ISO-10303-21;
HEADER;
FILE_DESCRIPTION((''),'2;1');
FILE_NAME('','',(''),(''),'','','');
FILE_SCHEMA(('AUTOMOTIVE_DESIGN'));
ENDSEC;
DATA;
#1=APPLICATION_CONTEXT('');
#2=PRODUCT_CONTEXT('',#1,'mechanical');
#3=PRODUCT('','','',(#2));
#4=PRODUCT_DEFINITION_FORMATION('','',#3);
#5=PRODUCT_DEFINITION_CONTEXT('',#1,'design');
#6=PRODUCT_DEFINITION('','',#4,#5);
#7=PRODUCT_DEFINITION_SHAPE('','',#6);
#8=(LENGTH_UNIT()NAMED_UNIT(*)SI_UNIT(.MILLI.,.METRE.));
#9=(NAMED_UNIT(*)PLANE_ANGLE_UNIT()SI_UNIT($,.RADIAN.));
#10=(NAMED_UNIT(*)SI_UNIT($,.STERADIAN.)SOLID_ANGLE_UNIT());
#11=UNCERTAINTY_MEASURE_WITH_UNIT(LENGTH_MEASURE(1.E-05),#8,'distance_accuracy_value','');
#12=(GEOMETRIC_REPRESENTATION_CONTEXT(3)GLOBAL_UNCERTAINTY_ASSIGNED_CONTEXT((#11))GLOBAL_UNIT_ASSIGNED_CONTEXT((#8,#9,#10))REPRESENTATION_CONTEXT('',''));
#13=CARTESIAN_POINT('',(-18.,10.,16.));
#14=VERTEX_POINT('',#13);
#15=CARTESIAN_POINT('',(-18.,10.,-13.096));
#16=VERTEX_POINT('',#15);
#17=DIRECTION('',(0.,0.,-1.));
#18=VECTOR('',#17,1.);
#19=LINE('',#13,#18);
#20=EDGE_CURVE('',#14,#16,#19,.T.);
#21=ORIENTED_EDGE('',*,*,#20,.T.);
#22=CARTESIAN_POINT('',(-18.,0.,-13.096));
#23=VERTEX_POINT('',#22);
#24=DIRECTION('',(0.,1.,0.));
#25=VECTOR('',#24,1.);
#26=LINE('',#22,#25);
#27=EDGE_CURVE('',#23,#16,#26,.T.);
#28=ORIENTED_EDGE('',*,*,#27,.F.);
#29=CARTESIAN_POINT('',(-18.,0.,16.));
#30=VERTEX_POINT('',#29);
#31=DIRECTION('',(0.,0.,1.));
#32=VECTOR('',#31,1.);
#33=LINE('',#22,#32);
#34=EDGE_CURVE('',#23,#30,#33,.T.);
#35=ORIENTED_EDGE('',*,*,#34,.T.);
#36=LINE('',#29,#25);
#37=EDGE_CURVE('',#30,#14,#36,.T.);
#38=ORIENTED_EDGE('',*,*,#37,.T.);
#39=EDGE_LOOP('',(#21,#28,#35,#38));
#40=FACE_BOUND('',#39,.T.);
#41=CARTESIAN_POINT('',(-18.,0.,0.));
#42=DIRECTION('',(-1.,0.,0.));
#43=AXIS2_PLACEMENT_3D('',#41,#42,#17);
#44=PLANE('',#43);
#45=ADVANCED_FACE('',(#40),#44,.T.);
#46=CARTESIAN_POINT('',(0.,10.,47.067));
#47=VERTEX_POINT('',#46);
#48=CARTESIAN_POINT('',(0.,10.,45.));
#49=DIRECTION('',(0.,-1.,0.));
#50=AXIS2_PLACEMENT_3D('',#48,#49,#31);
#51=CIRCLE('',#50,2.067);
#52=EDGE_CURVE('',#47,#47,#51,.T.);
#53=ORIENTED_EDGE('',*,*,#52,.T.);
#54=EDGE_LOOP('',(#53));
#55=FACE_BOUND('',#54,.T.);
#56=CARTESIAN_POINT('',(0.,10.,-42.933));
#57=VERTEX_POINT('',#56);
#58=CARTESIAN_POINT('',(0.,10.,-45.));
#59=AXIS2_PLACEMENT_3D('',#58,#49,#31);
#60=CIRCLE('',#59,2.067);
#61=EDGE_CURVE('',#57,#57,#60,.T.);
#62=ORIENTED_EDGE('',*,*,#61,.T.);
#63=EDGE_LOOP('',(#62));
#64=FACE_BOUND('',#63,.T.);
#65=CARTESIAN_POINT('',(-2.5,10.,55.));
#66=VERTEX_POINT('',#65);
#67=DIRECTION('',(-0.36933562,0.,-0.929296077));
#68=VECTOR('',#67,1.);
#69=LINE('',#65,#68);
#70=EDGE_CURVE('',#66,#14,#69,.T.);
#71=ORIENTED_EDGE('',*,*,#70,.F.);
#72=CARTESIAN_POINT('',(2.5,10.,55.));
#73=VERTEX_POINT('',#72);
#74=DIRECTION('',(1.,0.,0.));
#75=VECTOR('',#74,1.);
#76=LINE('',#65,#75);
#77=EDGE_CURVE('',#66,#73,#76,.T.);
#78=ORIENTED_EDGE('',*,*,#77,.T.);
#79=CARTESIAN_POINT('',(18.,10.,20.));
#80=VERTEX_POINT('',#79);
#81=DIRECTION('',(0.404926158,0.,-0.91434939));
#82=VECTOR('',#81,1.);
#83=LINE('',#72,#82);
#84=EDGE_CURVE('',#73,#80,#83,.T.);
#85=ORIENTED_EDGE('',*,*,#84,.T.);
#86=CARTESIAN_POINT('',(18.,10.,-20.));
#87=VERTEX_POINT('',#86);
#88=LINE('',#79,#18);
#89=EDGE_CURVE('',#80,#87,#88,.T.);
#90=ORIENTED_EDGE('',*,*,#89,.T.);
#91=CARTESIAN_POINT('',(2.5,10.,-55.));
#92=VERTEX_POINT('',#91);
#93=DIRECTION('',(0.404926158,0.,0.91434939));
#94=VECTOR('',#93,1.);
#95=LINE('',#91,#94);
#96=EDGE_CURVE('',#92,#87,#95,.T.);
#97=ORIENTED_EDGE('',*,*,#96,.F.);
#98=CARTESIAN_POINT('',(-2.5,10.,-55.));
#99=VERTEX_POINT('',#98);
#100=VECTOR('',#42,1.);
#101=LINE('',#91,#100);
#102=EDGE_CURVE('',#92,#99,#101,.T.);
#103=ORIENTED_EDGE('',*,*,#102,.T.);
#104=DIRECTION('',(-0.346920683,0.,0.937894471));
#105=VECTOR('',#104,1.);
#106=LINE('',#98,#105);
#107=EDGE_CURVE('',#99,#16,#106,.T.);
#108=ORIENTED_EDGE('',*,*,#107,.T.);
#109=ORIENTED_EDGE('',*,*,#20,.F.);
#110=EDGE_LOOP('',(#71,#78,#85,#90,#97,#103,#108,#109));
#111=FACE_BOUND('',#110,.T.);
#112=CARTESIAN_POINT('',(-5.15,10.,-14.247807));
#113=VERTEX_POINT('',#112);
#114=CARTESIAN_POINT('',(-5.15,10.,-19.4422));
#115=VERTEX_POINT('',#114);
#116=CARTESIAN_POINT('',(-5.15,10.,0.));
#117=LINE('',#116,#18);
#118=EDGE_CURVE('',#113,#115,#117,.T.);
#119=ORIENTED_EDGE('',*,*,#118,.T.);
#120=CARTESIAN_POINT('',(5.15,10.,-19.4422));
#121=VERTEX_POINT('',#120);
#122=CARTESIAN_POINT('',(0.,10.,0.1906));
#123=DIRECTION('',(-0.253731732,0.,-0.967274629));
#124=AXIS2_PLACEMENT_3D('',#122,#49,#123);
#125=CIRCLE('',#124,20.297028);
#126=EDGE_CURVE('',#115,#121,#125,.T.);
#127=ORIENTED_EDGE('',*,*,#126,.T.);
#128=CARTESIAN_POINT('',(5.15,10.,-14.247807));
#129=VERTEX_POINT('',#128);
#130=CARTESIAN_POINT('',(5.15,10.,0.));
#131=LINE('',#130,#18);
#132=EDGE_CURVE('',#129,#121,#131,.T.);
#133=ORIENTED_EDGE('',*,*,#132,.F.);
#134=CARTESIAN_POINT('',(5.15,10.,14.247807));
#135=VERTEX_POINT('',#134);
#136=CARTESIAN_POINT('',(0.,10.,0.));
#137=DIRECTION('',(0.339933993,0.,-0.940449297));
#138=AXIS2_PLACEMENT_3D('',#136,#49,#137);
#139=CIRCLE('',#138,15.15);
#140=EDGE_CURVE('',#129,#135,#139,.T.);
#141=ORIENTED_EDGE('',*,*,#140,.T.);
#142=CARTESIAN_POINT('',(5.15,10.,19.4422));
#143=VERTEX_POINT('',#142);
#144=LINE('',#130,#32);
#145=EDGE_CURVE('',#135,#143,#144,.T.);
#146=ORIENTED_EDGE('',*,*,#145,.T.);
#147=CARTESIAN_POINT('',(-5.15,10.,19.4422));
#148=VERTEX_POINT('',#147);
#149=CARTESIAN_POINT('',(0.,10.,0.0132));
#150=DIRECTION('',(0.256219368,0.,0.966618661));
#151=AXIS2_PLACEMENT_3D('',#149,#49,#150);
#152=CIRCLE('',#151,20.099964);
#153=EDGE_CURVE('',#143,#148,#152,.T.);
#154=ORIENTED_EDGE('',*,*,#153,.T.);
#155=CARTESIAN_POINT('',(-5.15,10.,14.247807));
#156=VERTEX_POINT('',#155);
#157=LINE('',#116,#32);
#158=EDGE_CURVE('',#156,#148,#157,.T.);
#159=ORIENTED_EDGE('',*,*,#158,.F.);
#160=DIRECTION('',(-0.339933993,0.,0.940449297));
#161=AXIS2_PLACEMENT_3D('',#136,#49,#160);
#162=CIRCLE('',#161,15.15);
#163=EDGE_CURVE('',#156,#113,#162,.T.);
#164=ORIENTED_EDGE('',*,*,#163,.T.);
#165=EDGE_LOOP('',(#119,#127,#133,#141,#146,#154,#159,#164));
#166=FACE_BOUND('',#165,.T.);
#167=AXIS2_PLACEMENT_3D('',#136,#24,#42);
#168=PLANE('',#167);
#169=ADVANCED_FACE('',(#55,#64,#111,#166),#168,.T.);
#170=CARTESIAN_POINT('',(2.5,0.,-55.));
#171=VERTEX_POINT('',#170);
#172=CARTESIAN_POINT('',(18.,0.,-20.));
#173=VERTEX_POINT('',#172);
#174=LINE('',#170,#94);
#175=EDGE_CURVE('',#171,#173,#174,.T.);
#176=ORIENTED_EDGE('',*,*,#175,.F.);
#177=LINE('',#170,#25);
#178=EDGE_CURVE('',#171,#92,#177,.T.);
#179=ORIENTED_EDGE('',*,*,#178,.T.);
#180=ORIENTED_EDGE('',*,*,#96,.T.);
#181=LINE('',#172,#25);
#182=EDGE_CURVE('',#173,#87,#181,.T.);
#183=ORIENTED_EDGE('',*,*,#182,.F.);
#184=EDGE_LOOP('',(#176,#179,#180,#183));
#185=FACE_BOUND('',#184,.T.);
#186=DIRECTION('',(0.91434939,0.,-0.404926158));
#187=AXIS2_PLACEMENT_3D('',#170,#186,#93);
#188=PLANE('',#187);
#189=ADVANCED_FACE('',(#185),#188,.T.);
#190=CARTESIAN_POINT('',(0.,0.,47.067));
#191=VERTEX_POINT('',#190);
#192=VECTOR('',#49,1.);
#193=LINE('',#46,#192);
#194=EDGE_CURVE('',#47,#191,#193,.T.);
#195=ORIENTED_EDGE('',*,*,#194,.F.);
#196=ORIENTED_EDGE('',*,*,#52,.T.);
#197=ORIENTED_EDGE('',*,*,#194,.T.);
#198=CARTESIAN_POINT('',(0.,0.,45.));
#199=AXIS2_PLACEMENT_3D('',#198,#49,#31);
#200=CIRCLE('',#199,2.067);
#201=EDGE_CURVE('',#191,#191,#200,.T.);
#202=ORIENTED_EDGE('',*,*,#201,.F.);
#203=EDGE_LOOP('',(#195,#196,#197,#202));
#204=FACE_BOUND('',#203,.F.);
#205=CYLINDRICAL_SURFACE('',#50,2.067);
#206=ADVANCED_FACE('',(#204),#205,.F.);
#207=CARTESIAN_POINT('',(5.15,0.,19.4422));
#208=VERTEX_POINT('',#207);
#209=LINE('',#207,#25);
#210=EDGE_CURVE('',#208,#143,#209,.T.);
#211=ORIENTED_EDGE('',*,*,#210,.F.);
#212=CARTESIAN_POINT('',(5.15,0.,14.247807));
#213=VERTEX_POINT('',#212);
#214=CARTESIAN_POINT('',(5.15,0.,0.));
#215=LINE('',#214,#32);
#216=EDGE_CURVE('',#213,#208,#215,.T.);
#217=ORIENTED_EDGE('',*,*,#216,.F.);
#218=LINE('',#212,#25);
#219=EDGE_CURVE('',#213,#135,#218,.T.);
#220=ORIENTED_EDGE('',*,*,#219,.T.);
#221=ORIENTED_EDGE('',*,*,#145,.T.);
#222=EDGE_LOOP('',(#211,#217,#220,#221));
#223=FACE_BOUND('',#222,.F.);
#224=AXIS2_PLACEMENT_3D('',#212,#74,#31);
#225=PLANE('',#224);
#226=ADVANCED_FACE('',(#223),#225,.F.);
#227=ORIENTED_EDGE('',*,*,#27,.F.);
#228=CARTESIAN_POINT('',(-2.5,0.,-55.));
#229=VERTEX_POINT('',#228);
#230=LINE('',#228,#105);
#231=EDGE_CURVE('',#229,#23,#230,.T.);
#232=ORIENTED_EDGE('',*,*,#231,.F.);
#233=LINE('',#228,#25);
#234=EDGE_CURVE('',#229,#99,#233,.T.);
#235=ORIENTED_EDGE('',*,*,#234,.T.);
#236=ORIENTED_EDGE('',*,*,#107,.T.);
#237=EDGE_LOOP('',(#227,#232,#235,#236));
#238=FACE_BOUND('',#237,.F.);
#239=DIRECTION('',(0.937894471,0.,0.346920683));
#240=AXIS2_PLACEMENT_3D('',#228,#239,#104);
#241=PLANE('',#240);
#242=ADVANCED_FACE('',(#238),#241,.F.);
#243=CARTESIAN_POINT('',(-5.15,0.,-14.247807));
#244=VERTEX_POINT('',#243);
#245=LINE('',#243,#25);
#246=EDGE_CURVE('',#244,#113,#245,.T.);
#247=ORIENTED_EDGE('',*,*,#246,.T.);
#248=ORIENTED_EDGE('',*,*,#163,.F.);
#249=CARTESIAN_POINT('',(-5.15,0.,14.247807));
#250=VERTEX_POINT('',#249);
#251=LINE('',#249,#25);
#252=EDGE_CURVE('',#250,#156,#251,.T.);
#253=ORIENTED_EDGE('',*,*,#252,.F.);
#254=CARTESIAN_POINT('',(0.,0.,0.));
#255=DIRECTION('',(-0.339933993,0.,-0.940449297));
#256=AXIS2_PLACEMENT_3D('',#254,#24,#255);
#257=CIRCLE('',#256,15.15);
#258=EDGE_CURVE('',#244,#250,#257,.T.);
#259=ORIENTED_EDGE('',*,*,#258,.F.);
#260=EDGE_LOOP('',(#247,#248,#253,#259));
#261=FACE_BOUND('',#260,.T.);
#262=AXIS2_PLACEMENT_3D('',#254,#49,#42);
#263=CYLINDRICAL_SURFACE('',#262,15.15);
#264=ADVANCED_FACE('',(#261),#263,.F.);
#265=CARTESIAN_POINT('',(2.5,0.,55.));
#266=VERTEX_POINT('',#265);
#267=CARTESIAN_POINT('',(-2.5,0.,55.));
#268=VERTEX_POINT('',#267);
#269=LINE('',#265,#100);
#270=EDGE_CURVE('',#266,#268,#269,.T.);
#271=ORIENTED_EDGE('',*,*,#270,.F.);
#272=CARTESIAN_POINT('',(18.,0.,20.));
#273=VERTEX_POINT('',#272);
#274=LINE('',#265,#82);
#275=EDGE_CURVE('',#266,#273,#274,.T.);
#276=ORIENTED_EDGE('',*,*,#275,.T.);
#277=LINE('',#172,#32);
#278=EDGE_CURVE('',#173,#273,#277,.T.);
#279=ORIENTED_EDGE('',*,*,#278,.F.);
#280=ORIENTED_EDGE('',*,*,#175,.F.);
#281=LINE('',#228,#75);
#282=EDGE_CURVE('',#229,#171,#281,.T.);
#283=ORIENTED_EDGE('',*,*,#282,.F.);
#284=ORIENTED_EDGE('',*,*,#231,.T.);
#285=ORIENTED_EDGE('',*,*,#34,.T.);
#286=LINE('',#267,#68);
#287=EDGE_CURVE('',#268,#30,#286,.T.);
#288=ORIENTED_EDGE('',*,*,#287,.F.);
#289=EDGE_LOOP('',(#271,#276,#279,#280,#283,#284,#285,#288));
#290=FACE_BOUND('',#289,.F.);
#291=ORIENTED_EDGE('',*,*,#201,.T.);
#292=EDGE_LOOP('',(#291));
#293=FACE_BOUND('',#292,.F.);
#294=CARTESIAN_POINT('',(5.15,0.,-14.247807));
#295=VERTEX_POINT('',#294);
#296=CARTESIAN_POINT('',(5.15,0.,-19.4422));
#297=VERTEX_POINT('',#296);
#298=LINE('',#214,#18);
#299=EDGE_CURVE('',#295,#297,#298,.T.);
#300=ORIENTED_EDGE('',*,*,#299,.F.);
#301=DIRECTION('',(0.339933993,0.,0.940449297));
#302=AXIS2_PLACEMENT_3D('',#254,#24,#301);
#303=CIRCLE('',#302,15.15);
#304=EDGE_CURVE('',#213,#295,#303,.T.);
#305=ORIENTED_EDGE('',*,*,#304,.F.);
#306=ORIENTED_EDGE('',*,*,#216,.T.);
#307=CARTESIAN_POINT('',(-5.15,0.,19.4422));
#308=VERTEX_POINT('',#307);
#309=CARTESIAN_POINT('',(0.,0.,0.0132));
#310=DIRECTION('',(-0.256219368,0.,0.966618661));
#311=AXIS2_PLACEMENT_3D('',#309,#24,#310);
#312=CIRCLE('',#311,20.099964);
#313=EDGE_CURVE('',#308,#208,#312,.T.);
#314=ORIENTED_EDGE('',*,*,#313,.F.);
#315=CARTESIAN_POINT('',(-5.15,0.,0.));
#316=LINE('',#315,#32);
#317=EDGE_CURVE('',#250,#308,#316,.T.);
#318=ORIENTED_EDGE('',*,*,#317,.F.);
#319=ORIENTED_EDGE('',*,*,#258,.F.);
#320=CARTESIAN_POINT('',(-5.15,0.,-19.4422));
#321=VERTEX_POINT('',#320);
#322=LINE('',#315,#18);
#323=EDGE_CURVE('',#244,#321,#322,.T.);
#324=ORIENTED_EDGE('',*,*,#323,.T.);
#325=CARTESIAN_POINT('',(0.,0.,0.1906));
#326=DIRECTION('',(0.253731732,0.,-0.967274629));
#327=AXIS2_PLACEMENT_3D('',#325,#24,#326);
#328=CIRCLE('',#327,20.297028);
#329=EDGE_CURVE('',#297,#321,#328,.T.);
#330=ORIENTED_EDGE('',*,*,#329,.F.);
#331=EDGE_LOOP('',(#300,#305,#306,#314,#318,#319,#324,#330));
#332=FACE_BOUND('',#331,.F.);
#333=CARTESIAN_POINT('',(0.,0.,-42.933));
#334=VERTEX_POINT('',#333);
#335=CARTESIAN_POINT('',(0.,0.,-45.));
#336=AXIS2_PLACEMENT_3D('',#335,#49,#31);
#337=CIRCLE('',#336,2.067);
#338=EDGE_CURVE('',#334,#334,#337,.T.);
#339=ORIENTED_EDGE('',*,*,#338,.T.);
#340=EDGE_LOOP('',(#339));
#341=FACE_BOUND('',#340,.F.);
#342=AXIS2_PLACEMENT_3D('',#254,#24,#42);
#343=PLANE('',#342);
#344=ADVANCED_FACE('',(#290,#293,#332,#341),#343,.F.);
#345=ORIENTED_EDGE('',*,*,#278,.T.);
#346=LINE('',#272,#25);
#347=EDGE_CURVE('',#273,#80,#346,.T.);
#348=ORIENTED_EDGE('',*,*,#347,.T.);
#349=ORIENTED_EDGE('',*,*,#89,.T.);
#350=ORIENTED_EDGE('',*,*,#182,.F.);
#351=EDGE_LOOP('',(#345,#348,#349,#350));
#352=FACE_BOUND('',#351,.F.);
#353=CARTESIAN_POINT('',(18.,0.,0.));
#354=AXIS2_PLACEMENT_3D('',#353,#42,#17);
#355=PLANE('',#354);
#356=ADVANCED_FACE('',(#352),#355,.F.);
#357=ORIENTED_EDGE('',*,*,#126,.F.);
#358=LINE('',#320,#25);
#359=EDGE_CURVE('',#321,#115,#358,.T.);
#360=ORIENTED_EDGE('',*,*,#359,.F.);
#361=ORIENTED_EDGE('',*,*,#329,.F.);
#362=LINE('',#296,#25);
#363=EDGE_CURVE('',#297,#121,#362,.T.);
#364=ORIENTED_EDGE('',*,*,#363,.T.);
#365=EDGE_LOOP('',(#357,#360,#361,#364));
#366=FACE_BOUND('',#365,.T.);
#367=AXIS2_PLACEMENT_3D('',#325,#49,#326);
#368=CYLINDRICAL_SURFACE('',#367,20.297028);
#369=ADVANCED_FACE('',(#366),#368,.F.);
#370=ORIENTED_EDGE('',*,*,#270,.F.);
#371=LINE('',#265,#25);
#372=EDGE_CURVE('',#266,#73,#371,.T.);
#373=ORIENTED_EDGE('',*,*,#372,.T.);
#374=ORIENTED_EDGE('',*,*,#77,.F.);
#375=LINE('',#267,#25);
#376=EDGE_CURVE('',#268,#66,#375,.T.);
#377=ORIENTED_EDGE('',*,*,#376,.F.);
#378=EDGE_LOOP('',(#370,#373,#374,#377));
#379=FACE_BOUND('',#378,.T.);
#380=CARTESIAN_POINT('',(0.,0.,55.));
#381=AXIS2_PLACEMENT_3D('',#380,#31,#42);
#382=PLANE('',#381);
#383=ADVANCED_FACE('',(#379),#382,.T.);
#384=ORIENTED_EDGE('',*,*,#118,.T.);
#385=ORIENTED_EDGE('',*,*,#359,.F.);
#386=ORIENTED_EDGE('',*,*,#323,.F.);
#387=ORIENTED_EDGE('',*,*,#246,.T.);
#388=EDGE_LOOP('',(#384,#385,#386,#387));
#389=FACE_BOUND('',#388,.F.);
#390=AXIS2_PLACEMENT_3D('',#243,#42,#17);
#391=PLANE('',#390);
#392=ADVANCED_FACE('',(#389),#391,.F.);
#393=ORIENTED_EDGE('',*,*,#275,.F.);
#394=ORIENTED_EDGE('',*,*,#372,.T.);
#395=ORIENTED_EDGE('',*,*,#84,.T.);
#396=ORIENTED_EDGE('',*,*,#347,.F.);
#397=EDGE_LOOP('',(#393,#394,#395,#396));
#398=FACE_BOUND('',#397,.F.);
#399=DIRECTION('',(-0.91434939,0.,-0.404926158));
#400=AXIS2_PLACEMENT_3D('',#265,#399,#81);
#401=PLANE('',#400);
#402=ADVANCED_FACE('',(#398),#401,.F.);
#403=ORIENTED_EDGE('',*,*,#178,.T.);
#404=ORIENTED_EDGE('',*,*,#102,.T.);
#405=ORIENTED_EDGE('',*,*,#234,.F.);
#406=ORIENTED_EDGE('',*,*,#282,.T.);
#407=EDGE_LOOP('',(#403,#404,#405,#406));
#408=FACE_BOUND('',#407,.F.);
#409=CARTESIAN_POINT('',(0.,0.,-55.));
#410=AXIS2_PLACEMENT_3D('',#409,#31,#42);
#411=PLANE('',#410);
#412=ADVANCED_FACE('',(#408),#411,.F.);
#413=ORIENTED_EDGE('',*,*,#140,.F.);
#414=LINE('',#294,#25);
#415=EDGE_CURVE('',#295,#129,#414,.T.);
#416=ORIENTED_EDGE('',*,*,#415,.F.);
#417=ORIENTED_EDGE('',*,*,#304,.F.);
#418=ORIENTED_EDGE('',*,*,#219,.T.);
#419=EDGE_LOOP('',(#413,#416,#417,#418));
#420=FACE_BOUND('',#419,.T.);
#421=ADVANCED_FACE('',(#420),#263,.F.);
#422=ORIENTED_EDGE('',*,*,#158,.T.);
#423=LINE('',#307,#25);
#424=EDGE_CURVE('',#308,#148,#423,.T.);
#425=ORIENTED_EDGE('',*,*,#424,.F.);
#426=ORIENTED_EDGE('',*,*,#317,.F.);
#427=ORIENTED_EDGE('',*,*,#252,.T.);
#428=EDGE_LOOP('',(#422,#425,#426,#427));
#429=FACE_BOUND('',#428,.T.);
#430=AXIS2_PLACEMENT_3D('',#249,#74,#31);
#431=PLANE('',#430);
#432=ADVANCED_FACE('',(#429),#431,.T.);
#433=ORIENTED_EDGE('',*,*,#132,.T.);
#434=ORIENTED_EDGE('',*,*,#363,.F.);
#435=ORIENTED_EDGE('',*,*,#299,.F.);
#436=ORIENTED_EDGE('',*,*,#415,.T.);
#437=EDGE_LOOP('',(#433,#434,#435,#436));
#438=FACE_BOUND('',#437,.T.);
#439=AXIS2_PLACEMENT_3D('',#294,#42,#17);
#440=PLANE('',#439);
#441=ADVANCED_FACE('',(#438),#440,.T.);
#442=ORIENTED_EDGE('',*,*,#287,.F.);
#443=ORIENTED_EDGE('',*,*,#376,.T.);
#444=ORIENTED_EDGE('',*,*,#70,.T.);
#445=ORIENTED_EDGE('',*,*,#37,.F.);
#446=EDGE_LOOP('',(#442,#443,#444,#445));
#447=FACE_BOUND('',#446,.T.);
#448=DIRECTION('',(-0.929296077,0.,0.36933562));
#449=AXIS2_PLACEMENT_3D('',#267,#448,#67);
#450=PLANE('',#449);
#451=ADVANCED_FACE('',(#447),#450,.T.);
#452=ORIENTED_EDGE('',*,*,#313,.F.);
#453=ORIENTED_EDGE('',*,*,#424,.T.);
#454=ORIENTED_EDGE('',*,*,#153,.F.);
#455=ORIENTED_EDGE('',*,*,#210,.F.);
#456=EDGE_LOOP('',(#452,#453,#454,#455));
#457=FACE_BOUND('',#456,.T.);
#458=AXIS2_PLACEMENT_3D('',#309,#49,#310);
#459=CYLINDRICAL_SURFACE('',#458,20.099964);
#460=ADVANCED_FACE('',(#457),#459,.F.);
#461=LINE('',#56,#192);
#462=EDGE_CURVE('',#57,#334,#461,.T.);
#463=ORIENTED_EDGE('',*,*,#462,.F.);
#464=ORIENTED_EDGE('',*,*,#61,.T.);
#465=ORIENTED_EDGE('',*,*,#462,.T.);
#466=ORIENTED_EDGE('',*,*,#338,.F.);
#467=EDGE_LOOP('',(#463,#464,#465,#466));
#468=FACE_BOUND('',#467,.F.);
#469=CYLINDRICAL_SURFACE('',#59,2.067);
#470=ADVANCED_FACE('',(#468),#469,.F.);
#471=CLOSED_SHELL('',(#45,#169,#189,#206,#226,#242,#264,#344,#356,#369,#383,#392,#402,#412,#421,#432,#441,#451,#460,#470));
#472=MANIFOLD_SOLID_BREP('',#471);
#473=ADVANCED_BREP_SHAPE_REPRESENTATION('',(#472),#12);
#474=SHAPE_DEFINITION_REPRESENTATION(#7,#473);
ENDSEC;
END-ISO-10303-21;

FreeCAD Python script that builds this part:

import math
import FreeCAD as App
import Part
import Sketcher
Q = App.Units.Quantity


def add_polygon(sketch, points):
    """Adds a closed chain of lines whose ends are joined by coincident constraints."""
    first, n = sketch.GeometryCount, len(points)
    for a, b in zip(points, points[1:] + points[:1]):
        sketch.addGeometry(Part.LineSegment(App.Vector(*a, 0), App.Vector(*b, 0)), False)
    for i in range(n):
        sketch.addConstraint(Sketcher.Constraint("Coincident", first + i, 2, first + (i + 1) % n, 1))

doc = App.newDocument("Part")
body = doc.addObject("PartDesign::Body", "Body")

# Sketch on XZ plane
sketch1 = body.newObject("Sketcher::SketchObject", "Sketch")
sketch1.AttachmentSupport = (doc.getObject("XZ_Plane"), [""])
sketch1.MapMode = "FlatFace"
add_polygon(sketch1, [(-18, -13.096), (-18, 16), (-2.5, 55), (2.5, 55), (18, 20), (18, -20), (2.5, -55), (-2.5, -55)])  # lines 0-7
sketch1.addGeometry(Part.ArcOfCircle(Part.Circle(App.Vector(0, 0.1906, 0), App.Vector(0, 0, 1), 20.297028), math.radians(-104.698447), math.radians(-75.301553)), False)  # 8
sketch1.addGeometry(Part.LineSegment(App.Vector(5.15, -19.4422, 0), App.Vector(5.15, -14.247807, 0)), False)  # 9
sketch1.addGeometry(Part.ArcOfCircle(Part.Circle(App.Vector(0, 0, 0), App.Vector(0, 0, 1), 15.15), math.radians(-70.127147), math.radians(70.127147)), False)  # 10
sketch1.addGeometry(Part.LineSegment(App.Vector(5.15, 14.247807, 0), App.Vector(5.15, 19.4422, 0)), False)  # 11
sketch1.addGeometry(Part.ArcOfCircle(Part.Circle(App.Vector(0, 0.0132, 0), App.Vector(0, 0, 1), 20.099964), math.radians(75.15415), math.radians(104.84585)), False)  # 12
sketch1.addGeometry(Part.LineSegment(App.Vector(-5.15, 19.4422, 0), App.Vector(-5.15, 14.247807, 0)), False)  # 13
sketch1.addGeometry(Part.ArcOfCircle(Part.Circle(App.Vector(0, 0, 0), App.Vector(0, 0, 1), 15.15), math.radians(109.872853), math.radians(250.127147)), False)  # 14
sketch1.addGeometry(Part.LineSegment(App.Vector(-5.15, -14.247807, 0), App.Vector(-5.15, -19.4422, 0)), False)  # 15
sketch1.addConstraint([
    Sketcher.Constraint("Coincident", 8, 2, 9, 1),
    Sketcher.Constraint("Coincident", 9, 2, 10, 1),
    Sketcher.Constraint("Coincident", 10, 2, 11, 1),
    Sketcher.Constraint("Coincident", 11, 2, 12, 1),
    Sketcher.Constraint("Coincident", 12, 2, 13, 1),
    Sketcher.Constraint("Coincident", 13, 2, 14, 1),
    Sketcher.Constraint("Coincident", 14, 2, 15, 1),
    Sketcher.Constraint("Coincident", 15, 2, 8, 1),
    Sketcher.Constraint("Vertical", 0),
    Sketcher.Constraint("Horizontal", 2),
    Sketcher.Constraint("Vertical", 4),
    Sketcher.Constraint("Horizontal", 6),
    Sketcher.Constraint("Vertical", 9),
    Sketcher.Constraint("Vertical", 11),
    Sketcher.Constraint("Vertical", 13),
    Sketcher.Constraint("Vertical", 15),
    Sketcher.Constraint("Coincident", 10, 3, -1, 1),
    Sketcher.Constraint("Coincident", 14, 3, -1, 1),
    Sketcher.Constraint("Equal", 10, 14),
    Sketcher.Constraint("Symmetric", 1, 2, 5, 2, -1, 1),
    Sketcher.Constraint("Symmetric", 8, 2, 12, 2, -1, 1),
    Sketcher.Constraint("Symmetric", 11, 2, 15, 2, -1, 1),
    Sketcher.Constraint("Symmetric", 11, 2, 12, 2, -2),
    Sketcher.Constraint("Vertical", 2, 2, 5, 2),
    Sketcher.Constraint("Vertical", 1, 2, 6, 2),
    Sketcher.Constraint("Equal", 3, 5),
    Sketcher.Constraint("Radius", 10, Q("15.15 mm")),
    Sketcher.Constraint("DistanceX", 0, 2, -1, 1, Q("18 mm")),
    Sketcher.Constraint("DistanceY", -1, 1, 0, 2, Q("16 mm")),
    Sketcher.Constraint("DistanceY", -1, 1, 1, 2, Q("55 mm")),
    Sketcher.Constraint("DistanceX", -1, 1, 3, 2, Q("18 mm")),
    Sketcher.Constraint("DistanceY", -1, 1, 3, 2, Q("20 mm")),
    Sketcher.Constraint("DistanceX", 1, 2, -1, 1, Q("2.5 mm")),
    Sketcher.Constraint("Radius", 12, Q("20.1 mm")),
    Sketcher.Constraint("DistanceX", 12, 2, 11, 2, Q("10.3 mm")),
    Sketcher.Constraint("Angle", 7, Q("110.299 deg")),
    Sketcher.Constraint("Radius", 8, Q("20.297 mm")),
    Sketcher.Constraint("DistanceY", 9, 1, 9, 2, Q("5.1944 mm")),
])
pad1 = body.newObject("PartDesign::Pad", "Pad")
pad1.Profile = sketch1
pad1.Length = 10
pad1.Reversed = True

# Sketch on XZ plane
sketch2 = body.newObject("Sketcher::SketchObject", "Sketch001")
sketch2.AttachmentSupport = (doc.getObject("XZ_Plane"), [""])
sketch2.MapMode = "FlatFace"
sketch2.AttachmentOffset = App.Placement(App.Vector(0, 0, -10), App.Rotation())
sketch2.addGeometry([
    Part.Circle(App.Vector(0, 45, 0), App.Vector(0, 0, 1), 2.067),
    Part.Circle(App.Vector(0, -45, 0), App.Vector(0, 0, 1), 2.067),
], False)
sketch2.addConstraint([
    Sketcher.Constraint("Equal", 0, 1),
    Sketcher.Constraint("Symmetric", 0, 3, 1, 3, -1, 1),
    Sketcher.Constraint("PointOnObject", 0, 3, -2),
    Sketcher.Constraint("Diameter", 0, Q("4.134 mm")),
    Sketcher.Constraint("DistanceY", -1, 1, 0, 3, Q("45 mm")),
])
doc.recompute()
hole = body.newObject("PartDesign::Hole", "Hole")
hole.Profile = sketch2
hole.ThreadType = "None"
hole.Diameter = 4.134
hole.DepthType = "ThroughAll"
hole.Reversed = True

doc.recompute()
